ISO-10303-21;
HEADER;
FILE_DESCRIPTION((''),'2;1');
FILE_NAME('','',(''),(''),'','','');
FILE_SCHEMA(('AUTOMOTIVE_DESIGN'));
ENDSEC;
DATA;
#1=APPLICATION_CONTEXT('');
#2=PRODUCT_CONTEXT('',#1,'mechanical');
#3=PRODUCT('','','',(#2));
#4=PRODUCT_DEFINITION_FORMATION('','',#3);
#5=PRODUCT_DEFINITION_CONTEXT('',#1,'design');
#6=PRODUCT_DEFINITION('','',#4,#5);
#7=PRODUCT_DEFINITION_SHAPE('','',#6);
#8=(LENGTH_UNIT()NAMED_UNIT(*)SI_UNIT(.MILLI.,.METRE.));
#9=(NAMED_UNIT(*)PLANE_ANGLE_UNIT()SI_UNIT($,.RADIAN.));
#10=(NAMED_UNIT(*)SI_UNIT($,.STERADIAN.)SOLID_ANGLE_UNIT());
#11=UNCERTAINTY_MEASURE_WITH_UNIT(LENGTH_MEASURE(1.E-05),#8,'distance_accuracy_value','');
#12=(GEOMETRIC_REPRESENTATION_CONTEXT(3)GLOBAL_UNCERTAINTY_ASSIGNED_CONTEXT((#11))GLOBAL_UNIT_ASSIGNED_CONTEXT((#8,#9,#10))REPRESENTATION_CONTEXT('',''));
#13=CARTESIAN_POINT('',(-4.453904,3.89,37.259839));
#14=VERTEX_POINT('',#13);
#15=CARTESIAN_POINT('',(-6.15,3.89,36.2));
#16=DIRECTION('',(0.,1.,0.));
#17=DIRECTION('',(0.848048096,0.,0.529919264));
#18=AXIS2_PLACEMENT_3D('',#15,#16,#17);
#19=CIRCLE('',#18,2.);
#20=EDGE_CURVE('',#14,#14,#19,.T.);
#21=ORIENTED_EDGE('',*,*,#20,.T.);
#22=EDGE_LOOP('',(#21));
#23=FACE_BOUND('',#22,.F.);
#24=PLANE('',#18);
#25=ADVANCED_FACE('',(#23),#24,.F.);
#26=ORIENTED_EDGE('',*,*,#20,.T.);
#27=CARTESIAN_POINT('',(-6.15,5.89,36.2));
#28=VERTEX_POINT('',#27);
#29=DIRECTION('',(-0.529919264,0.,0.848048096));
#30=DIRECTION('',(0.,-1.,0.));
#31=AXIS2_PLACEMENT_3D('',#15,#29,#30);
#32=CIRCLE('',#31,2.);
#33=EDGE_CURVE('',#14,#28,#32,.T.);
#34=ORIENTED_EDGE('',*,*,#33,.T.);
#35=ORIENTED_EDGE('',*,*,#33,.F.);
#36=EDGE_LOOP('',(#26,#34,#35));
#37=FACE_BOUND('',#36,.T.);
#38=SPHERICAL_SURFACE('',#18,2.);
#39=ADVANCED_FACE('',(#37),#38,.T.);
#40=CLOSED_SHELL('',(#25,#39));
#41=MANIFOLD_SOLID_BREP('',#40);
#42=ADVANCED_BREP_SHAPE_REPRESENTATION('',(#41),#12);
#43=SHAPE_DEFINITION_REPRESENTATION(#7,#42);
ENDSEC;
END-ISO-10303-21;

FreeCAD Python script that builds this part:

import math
import FreeCAD as App
import Part
import Sketcher
Q = App.Units.Quantity

doc = App.newDocument("Part")
body = doc.addObject("PartDesign::Body", "Body")

# Sketch on XY plane
sketch1 = body.newObject("Sketcher::SketchObject", "Sketch")
sketch1.AttachmentSupport = (doc.getObject("XY_Plane"), [""])
sketch1.MapMode = "FlatFace"
sketch1.AttachmentOffset = App.Placement(App.Vector(0, 0, -10), App.Rotation())
sketch1.addGeometry([
    Part.LineSegment(App.Vector(-5, 5, 0), App.Vector(-5, -5, 0)),
    Part.LineSegment(App.Vector(-5, -5, 0), App.Vector(5, -5, 0)),
    Part.LineSegment(App.Vector(5, -5, 0), App.Vector(5, 5, 0)),
    Part.LineSegment(App.Vector(5, 5, 0), App.Vector(-5, 5, 0)),
], False)
sketch1.addConstraint([
    Sketcher.Constraint("Coincident", 0, 2, 1, 1),
    Sketcher.Constraint("Coincident", 1, 2, 2, 1),
    Sketcher.Constraint("Coincident", 2, 2, 3, 1),
    Sketcher.Constraint("Coincident", 3, 2, 0, 1),
    Sketcher.Constraint("Vertical", 0),
    Sketcher.Constraint("Horizontal", 1),
    Sketcher.Constraint("Vertical", 2),
    Sketcher.Constraint("Horizontal", 3),
    Sketcher.Constraint("Symmetric", 0, 2, 2, 2, -1, 1),
    Sketcher.Constraint("Equal", 3, 0),
    Sketcher.Constraint("DistanceX", 1, 1, 1, 2, Q("10 mm")),
])
pad1 = body.newObject("PartDesign::Pad", "Pad")
pad1.Profile = sketch1
pad1.Length = 10
body2 = doc.addObject("PartDesign::Body", "Body001")

# Sketch on XZ plane
sketch2 = body2.newObject("Sketcher::SketchObject", "Sketch001")
sketch2.AttachmentSupport = (doc.getObject("XZ_Plane001"), [""])
sketch2.MapMode = "FlatFace"
sketch2.addGeometry([
    Part.ArcOfCircle(Part.Circle(App.Vector(0, 0, 0), App.Vector(0, 0, 1), 2), math.radians(-90), math.radians(90)),
    Part.LineSegment(App.Vector(0, 2, 0), App.Vector(0, -2, 0)),
], False)
sketch2.addConstraint([
    Sketcher.Constraint("Coincident", 0, 1, 1, 2),
    Sketcher.Constraint("Coincident", 1, 1, 0, 2),
    Sketcher.Constraint("Vertical", 1),
    Sketcher.Constraint("Coincident", 0, 3, -1, 1),
    Sketcher.Constraint("PointOnObject", 0, 1, -2),
    Sketcher.Constraint("Radius", 0, Q("2 mm")),
])
revolution = body2.newObject("PartDesign::Revolution", "Revolution")
revolution.Profile = sketch2
revolution.ReferenceAxis = (sketch2, ["V_Axis"])
revolution.Angle = 360
doc.recompute()

boolean = body2.newObject("PartDesign::Boolean", "Boolean")
boolean.Type = "Cut"
boolean.addObjects([body])
body3 = doc.addObject("PartDesign::Body", "Body002")
doc.recompute()

body2.Placement = App.Placement(App.Vector(0, 0, 0), App.Rotation(App.Vector(1, 0, 0), 270))
boolean2 = body3.newObject("PartDesign::Boolean", "Boolean001")
boolean2.Type = "Fuse"
boolean2.addObjects([body2])
body4 = doc.addObject("PartDesign::Body", "Body003")
doc.recompute()

body3.Placement = App.Placement(App.Vector(0, 0, 0), App.Rotation(App.Vector(0, 1, 0), 328))
boolean3 = body4.newObject("PartDesign::Boolean", "Boolean002")
boolean3.Type = "Fuse"
boolean3.addObjects([body3])
body5 = doc.addObject("PartDesign::Body", "Body004")
doc.recompute()

body4.Placement = App.Placement(App.Vector(-6.15, 3.89, 36.2), App.Rotation(App.Vector(0, 0, 1), 0))
boolean4 = body5.newObject("PartDesign::Boolean", "Boolean003")
boolean4.Type = "Fuse"
boolean4.addObjects([body4])

doc.recompute()
